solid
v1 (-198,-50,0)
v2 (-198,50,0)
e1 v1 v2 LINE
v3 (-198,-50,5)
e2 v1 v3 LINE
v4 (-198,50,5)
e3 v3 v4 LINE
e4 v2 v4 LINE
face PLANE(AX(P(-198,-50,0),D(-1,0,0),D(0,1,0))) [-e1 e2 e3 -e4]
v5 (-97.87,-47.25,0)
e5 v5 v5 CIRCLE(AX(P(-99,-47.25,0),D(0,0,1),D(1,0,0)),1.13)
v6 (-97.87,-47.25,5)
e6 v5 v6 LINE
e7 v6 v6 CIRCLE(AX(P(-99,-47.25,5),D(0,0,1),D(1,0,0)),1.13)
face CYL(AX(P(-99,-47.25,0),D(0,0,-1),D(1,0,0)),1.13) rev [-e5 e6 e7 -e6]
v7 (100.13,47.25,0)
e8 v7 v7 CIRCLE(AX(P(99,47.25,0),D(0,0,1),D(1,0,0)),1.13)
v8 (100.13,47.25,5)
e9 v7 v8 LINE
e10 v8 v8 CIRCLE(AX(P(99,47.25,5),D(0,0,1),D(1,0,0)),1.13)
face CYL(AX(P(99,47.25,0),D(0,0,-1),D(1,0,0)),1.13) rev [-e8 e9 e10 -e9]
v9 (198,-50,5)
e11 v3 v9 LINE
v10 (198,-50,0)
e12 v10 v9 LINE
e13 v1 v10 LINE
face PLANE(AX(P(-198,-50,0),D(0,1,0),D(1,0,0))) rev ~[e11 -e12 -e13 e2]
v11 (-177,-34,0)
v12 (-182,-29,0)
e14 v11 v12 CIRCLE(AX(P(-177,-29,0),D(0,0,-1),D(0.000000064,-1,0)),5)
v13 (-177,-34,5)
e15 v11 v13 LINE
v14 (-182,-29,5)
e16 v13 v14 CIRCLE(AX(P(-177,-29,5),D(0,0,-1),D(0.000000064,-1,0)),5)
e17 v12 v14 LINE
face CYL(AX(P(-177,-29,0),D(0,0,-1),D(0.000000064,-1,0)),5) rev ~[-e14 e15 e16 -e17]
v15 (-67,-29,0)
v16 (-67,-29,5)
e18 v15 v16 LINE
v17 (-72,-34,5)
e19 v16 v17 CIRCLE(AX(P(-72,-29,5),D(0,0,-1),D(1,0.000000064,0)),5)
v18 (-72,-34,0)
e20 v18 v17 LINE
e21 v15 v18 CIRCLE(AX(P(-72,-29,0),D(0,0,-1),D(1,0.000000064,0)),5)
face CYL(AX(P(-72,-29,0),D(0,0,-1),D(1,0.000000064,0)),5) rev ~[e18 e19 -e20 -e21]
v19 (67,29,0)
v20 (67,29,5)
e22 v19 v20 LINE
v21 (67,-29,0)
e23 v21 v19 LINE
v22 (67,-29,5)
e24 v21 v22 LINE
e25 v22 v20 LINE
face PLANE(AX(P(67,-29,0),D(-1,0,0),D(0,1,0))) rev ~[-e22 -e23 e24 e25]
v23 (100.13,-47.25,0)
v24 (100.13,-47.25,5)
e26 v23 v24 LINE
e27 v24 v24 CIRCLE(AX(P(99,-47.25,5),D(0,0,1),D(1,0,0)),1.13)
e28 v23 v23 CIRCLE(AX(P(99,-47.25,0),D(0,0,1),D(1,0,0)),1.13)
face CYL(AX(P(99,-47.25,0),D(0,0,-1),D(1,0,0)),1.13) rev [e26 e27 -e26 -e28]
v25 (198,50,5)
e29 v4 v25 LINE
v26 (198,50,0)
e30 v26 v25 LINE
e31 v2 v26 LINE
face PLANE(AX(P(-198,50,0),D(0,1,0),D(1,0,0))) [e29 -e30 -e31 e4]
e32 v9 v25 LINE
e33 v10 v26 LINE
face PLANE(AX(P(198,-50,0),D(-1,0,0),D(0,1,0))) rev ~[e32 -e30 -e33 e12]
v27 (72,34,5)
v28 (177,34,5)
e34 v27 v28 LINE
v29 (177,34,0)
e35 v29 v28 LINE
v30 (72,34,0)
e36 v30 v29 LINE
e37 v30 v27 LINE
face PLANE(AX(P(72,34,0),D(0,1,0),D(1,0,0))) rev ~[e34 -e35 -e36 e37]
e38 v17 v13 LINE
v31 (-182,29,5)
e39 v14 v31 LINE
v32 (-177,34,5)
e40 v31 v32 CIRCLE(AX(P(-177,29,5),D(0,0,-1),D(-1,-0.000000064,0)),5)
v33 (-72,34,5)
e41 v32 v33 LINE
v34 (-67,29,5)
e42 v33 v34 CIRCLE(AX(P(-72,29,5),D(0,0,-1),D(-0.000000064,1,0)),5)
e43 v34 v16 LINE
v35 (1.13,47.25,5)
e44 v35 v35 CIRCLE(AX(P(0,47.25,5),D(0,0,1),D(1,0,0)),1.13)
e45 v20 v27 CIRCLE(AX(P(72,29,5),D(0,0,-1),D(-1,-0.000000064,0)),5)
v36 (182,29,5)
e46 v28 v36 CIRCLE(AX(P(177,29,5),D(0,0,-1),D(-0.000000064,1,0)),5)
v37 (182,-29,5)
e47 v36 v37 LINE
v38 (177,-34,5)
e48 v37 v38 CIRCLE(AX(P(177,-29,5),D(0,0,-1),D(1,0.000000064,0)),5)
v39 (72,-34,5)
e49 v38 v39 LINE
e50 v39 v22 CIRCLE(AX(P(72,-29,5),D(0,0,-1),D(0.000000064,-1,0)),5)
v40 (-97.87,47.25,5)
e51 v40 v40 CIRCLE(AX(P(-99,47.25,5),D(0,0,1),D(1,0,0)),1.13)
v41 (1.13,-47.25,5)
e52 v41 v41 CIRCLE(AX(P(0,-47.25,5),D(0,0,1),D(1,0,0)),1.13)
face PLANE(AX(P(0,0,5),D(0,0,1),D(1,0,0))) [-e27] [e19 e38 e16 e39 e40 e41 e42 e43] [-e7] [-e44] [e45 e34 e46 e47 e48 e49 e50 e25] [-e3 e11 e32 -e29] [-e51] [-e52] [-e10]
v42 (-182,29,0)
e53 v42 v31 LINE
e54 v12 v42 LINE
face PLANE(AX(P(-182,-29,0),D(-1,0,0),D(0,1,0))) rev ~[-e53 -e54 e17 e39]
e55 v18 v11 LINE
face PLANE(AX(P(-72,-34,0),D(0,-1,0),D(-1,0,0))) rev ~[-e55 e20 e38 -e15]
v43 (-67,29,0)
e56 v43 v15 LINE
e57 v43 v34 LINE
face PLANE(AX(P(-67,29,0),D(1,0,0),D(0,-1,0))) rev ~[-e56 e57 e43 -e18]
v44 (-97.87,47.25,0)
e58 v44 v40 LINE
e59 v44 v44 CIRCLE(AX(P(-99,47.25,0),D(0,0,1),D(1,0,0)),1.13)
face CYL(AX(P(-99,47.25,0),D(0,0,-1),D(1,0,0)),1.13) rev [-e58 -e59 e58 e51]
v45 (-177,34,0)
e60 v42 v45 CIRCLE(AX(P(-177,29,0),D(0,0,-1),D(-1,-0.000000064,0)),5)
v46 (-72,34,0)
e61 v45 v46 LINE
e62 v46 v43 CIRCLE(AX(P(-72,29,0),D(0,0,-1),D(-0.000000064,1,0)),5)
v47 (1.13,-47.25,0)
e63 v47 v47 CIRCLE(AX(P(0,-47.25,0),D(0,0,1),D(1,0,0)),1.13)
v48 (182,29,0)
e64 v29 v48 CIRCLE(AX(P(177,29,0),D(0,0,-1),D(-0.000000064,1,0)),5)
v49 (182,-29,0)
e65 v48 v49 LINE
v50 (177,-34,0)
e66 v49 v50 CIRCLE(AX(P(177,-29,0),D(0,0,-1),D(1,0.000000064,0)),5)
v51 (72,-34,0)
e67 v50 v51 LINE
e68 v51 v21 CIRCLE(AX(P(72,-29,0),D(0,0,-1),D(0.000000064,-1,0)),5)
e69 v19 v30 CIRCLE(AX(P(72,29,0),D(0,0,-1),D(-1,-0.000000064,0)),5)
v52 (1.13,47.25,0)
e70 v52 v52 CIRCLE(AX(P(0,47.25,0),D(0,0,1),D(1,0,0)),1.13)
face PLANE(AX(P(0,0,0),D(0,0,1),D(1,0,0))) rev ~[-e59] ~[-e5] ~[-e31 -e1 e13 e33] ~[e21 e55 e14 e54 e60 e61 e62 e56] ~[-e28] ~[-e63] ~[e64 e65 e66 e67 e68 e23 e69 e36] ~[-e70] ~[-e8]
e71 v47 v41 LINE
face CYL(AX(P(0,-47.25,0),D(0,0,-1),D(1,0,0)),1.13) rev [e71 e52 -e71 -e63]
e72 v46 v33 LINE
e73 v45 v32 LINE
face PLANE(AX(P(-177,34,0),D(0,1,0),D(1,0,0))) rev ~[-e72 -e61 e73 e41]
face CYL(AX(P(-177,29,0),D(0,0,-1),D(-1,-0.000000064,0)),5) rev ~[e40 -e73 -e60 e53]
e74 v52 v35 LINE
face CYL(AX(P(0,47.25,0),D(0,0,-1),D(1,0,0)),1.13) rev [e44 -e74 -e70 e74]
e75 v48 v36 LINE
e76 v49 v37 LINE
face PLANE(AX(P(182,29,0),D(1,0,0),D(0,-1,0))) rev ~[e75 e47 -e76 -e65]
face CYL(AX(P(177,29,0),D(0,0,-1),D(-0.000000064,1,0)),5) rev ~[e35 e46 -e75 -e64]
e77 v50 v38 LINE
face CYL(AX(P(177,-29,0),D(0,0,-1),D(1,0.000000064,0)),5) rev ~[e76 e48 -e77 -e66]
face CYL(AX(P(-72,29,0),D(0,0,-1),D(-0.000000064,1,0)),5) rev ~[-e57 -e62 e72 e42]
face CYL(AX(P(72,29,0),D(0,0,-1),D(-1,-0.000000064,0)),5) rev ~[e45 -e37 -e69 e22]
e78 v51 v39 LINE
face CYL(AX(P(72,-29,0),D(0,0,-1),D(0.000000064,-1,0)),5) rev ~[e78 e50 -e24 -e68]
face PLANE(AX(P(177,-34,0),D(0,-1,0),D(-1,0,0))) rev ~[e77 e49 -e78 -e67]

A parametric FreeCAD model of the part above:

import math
import FreeCAD as App
import Part
import Sketcher
from FreeCAD import Vector


def add_polygon(sketch, points):
    """Adds a closed chain of lines whose ends are joined by coincident constraints."""
    first, n = sketch.GeometryCount, len(points)
    for a, b in zip(points, points[1:] + points[:1]):
        sketch.addGeometry(Part.LineSegment(App.Vector(*a, 0), App.Vector(*b, 0)), False)
    for i in range(n):
        sketch.addConstraint(Sketcher.Constraint("Coincident", first + i, 2, first + (i + 1) % n, 1))

doc = App.newDocument("Part")
body = doc.addObject("PartDesign::Body", "Body")

# Sketch on XY plane
sketch1 = body.newObject("Sketcher::SketchObject", "Sketch")
sketch1.AttachmentSupport = (doc.getObject("XY_Plane"), [""])
sketch1.MapMode = "FlatFace"
add_polygon(sketch1, [(-198, 50), (-198, -50), (198, -50), (198, 50)])  # lines 0-3
sketch1.addGeometry(Part.Circle(Vector(-99, -47.2, 0), Vector(0, 0, 1), 1.1), False)  # 4
sketch1.addGeometry(Part.Circle(Vector(0, -47.2, 0), Vector(0, 0, 1), 1.1), False)  # 5
sketch1.addGeometry(Part.Circle(Vector(99, -47.2, 0), Vector(0, 0, 1), 1.1), False)  # 6
sketch1.addGeometry(Part.LineSegment(Vector(-182, -29, 0), Vector(-182, 29, 0)), False)  # 7
sketch1.addGeometry(Part.ArcOfCircle(Part.Circle(Vector(-177, 29, 0), Vector(0, 0, 1), 5), math.radians(90), math.radians(180)), False)  # 8
sketch1.addGeometry(Part.LineSegment(Vector(-177, 34, 0), Vector(-72, 34, 0)), False)  # 9
sketch1.addGeometry(Part.ArcOfCircle(Part.Circle(Vector(-72, 29, 0), Vector(0, 0, 1), 5), math.radians(0), math.radians(90)), False)  # 10
sketch1.addGeometry(Part.LineSegment(Vector(-67, 29, 0), Vector(-67, -29, 0)), False)  # 11
sketch1.addGeometry(Part.ArcOfCircle(Part.Circle(Vector(-72, -29, 0), Vector(0, 0, 1), 5), math.radians(-90), math.radians(0)), False)  # 12
sketch1.addGeometry(Part.LineSegment(Vector(-72, -34, 0), Vector(-177, -34, 0)), False)  # 13
sketch1.addGeometry(Part.ArcOfCircle(Part.Circle(Vector(-177, -29, 0), Vector(0, 0, 1), 5), math.radians(180), math.radians(270)), False)  # 14
sketch1.addGeometry(Part.Circle(Vector(-99, 47.2, 0), Vector(0, 0, 1), 1.1), False)  # 15
sketch1.addGeometry(Part.LineSegment(Vector(67, -29, 0), Vector(67, 29, 0)), False)  # 16
sketch1.addGeometry(Part.ArcOfCircle(Part.Circle(Vector(72, 29, 0), Vector(0, 0, 1), 5), math.radians(90), math.radians(180)), False)  # 17
sketch1.addGeometry(Part.LineSegment(Vector(72, 34, 0), Vector(177, 34, 0)), False)  # 18
sketch1.addGeometry(Part.ArcOfCircle(Part.Circle(Vector(177, 29, 0), Vector(0, 0, 1), 5), math.radians(0), math.radians(90)), False)  # 19
sketch1.addGeometry(Part.LineSegment(Vector(182, 29, 0), Vector(182, -29, 0)), False)  # 20
sketch1.addGeometry(Part.ArcOfCircle(Part.Circle(Vector(177, -29, 0), Vector(0, 0, 1), 5), math.radians(-90), math.radians(0)), False)  # 21
sketch1.addGeometry(Part.LineSegment(Vector(177, -34, 0), Vector(72, -34, 0)), False)  # 22
sketch1.addGeometry(Part.ArcOfCircle(Part.Circle(Vector(72, -29, 0), Vector(0, 0, 1), 5), math.radians(180), math.radians(270)), False)  # 23
sketch1.addGeometry(Part.Circle(Vector(0, 47.2, 0), Vector(0, 0, 1), 1.1), False)  # 24
sketch1.addGeometry(Part.Circle(Vector(99, 47.2, 0), Vector(0, 0, 1), 1.1), False)  # 25
sketch1.addConstraint([
    Sketcher.Constraint("Tangent", 7, 2, 8, 2),
    Sketcher.Constraint("Tangent", 8, 1, 9, 1),
    Sketcher.Constraint("Tangent", 9, 2, 10, 2),
    Sketcher.Constraint("Tangent", 10, 1, 11, 1),
    Sketcher.Constraint("Tangent", 11, 2, 12, 2),
    Sketcher.Constraint("Tangent", 12, 1, 13, 1),
    Sketcher.Constraint("Tangent", 13, 2, 14, 2),
    Sketcher.Constraint("Tangent", 14, 1, 7, 1),
    Sketcher.Constraint("Tangent", 16, 2, 17, 2),
    Sketcher.Constraint("Tangent", 17, 1, 18, 1),
    Sketcher.Constraint("Tangent", 18, 2, 19, 2),
    Sketcher.Constraint("Tangent", 19, 1, 20, 1),
    Sketcher.Constraint("Tangent", 20, 2, 21, 2),
    Sketcher.Constraint("Tangent", 21, 1, 22, 1),
    Sketcher.Constraint("Tangent", 22, 2, 23, 2),
    Sketcher.Constraint("Tangent", 23, 1, 16, 1),
    Sketcher.Constraint("Vertical", 0),
    Sketcher.Constraint("Horizontal", 1),
    Sketcher.Constraint("Vertical", 2),
    Sketcher.Constraint("Horizontal", 3),
    Sketcher.Constraint("Vertical", 7),
    Sketcher.Constraint("Horizontal", 9),
    Sketcher.Constraint("Vertical", 11),
    Sketcher.Constraint("Horizontal", 13),
    Sketcher.Constraint("Vertical", 16),
    Sketcher.Constraint("Horizontal", 18),
    Sketcher.Constraint("Vertical", 20),
    Sketcher.Constraint("Horizontal", 22),
    Sketcher.Constraint("Equal", 4, 5),
    Sketcher.Constraint("Equal", 5, 6),
    Sketcher.Constraint("Equal", 8, 10),
    Sketcher.Constraint("Equal", 10, 12),
    Sketcher.Constraint("Equal", 12, 14),
    Sketcher.Constraint("Equal", 6, 15),
    Sketcher.Constraint("Equal", 14, 17),
    Sketcher.Constraint("Equal", 17, 19),
    Sketcher.Constraint("Equal", 19, 21),
    Sketcher.Constraint("Equal", 21, 23),
    Sketcher.Constraint("Equal", 15, 24),
    Sketcher.Constraint("Equal", 24, 25),
    Sketcher.Constraint("Symmetric", 6, 3, 15, 3, -1, 1),
    Sketcher.Constraint("Symmetric", 12, 3, 17, 3, -1, 1),
    Sketcher.Constraint("Symmetric", 8, 3, 21, 3, -1, 1),
    Sketcher.Constraint("Symmetric", 5, 3, 24, 3, -1, 1),
    Sketcher.Constraint("Symmetric", 4, 3, 25, 3, -1, 1),
    Sketcher.Constraint("Symmetric", 0, 2, 2, 2, -1, 1),
    Sketcher.Constraint("Symmetric", 4, 3, 6, 3, -2),
    Sketcher.Constraint("PointOnObject", 5, 3, -2),
    Sketcher.Constraint("Horizontal", 4, 3, 5, 3),
    Sketcher.Constraint("Horizontal", 10, 3, 17, 3),
    Sketcher.Constraint("Radius", 8, 5.0),
    Sketcher.Constraint("Diameter", 4, 2.26),
    Sketcher.Constraint("DistanceX", 1, 1, 1, 2, 396.0),
    Sketcher.Constraint("DistanceX", 9, 1, 9, 2, 105.0),
    Sketcher.Constraint("DistanceY", 0, 2, 0, 1, 100.0),
    Sketcher.Constraint("DistanceY", 7, 1, 7, 2, 58.0),
    Sketcher.Constraint("DistanceX", 4, 3, -1, 1, 99.0),
    Sketcher.Constraint("DistanceX", 8, 3, -1, 1, 177.0),
    Sketcher.Constraint("DistanceY", 4, 3, 15, 3, 94.5),
])
pad1 = body.newObject("PartDesign::Pad", "Pad")
pad1.Profile = sketch1
pad1.Length = 5

doc.recompute()
